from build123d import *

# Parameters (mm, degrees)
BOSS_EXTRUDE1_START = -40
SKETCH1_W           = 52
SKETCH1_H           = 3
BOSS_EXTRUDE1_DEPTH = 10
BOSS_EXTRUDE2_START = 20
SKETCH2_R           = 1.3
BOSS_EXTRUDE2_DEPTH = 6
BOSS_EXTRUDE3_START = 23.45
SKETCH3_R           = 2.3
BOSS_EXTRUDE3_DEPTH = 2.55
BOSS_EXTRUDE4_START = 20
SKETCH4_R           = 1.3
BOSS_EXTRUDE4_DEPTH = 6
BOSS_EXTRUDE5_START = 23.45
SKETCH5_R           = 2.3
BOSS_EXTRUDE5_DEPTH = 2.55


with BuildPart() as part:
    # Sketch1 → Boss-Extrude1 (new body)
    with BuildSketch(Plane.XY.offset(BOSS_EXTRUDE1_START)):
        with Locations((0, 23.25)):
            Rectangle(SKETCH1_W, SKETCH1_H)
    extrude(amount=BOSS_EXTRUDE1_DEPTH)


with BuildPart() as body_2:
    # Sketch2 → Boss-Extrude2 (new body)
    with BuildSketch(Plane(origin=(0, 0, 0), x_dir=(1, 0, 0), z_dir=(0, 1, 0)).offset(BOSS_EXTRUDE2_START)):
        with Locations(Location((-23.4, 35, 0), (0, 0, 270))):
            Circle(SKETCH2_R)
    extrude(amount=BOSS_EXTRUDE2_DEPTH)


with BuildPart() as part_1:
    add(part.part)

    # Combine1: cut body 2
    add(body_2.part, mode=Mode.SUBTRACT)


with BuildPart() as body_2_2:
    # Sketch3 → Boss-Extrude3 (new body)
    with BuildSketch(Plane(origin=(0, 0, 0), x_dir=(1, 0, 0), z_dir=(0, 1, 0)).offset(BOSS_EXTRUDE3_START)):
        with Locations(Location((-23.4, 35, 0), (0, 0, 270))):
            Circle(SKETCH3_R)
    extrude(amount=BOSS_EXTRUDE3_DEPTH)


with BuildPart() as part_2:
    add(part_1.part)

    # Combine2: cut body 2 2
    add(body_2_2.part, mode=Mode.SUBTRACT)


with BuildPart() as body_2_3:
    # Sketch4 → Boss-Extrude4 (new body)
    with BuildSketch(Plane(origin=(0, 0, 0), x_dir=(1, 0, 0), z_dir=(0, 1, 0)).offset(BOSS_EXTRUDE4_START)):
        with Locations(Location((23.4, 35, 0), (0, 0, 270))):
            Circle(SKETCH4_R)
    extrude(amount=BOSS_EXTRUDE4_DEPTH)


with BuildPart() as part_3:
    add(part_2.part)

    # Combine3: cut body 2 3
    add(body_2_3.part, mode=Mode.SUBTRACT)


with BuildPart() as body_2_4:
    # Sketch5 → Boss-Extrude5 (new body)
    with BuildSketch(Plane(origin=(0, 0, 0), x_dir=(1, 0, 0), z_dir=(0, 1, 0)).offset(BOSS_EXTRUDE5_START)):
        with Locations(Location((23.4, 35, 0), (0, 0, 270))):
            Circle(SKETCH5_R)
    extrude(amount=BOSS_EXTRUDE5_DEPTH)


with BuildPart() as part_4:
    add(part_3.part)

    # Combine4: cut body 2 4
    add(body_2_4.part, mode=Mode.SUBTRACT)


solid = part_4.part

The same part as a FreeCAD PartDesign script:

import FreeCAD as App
import Part
import Sketcher
from FreeCAD import Vector
Q = App.Units.Quantity


def add_polygon(sketch, points):
    """Adds a closed chain of lines whose ends are joined by coincident constraints."""
    first, n = sketch.GeometryCount, len(points)
    for a, b in zip(points, points[1:] + points[:1]):
        sketch.addGeometry(Part.LineSegment(App.Vector(*a, 0), App.Vector(*b, 0)), False)
    for i in range(n):
        sketch.addConstraint(Sketcher.Constraint("Coincident", first + i, 2, first + (i + 1) % n, 1))

doc = App.newDocument("Part")
body = doc.addObject("PartDesign::Body", "Body")

sketch1 = body.newObject("Sketcher::SketchObject", "Sketch")
sketch1.AttachmentSupport = (doc.getObject("XY_Plane"), [""])
sketch1.MapMode = "FlatFace"
sketch1.AttachmentOffset = App.Placement(Vector(0, 0, -40), App.Rotation())
add_polygon(sketch1, [(-26, 24.8), (-26, 21.8), (26, 21.8), (26, 24.8)])
sketch1.addConstraint([
    Sketcher.Constraint("Vertical", 0),
    Sketcher.Constraint("Horizontal", 1),
    Sketcher.Constraint("Vertical", 2),
    Sketcher.Constraint("Horizontal", 3),
    Sketcher.Constraint("DistanceX", 1, 1, 1, 2, Q("52 mm")),
    Sketcher.Constraint("DistanceY", 0, 2, 0, 1, Q("3 mm")),
    Sketcher.Constraint("DistanceX", 0, 2, -1, 1, Q("26 mm")),
    Sketcher.Constraint("DistanceY", -1, 1, 0, 2, Q("21.75 mm")),
])
pad1 = body.newObject("PartDesign::Pad", "Pad")
pad1.Profile = sketch1
pad1.Length = 10
body2 = doc.addObject("PartDesign::Body", "Body001")

sketch2 = body2.newObject("Sketcher::SketchObject", "Sketch001")
sketch2.AttachmentSupport = (doc.getObject("XZ_Plane001"), [""])
sketch2.MapMode = "FlatFace"
sketch2.AttachmentOffset = App.Placement(Vector(0, 0, -20), App.Rotation())
sketch2.addGeometry(Part.Circle(Vector(-23.4, -35, 0), Vector(0, 0, 1), 1.3), False)
sketch2.addConstraint([
    Sketcher.Constraint("Diameter", 0, Q("2.6 mm")),
    Sketcher.Constraint("DistanceY", 0, 3, -1, 1, Q("35 mm")),
    Sketcher.Constraint("DistanceX", 0, 3, -1, 1, Q("23.4 mm")),
])
pad2 = body2.newObject("PartDesign::Pad", "Pad001")
pad2.Profile = sketch2
pad2.Length = 6
pad2.Reversed = True
doc.recompute()

boolean = body.newObject("PartDesign::Boolean", "Boolean")
boolean.Type = "Cut"
boolean.addObjects([body2])
body3 = doc.addObject("PartDesign::Body", "Body002")

sketch3 = body3.newObject("Sketcher::SketchObject", "Sketch002")
sketch3.AttachmentSupport = (doc.getObject("XZ_Plane002"), [""])
sketch3.MapMode = "FlatFace"
sketch3.AttachmentOffset = App.Placement(Vector(0, 0, -23.45), App.Rotation())
sketch3.addGeometry(Part.Circle(Vector(-23.4, -35, 0), Vector(0, 0, 1), 2.3), False)
sketch3.addConstraint([
    Sketcher.Constraint("Diameter", 0, Q("4.6 mm")),
    Sketcher.Constraint("DistanceY", 0, 3, -1, 1, Q("35 mm")),
    Sketcher.Constraint("DistanceX", 0, 3, -1, 1, Q("23.4 mm")),
])
pad3 = body3.newObject("PartDesign::Pad", "Pad002")
pad3.Profile = sketch3
pad3.Length = 2.55
pad3.Reversed = True
doc.recompute()

boolean2 = body.newObject("PartDesign::Boolean", "Boolean001")
boolean2.Type = "Cut"
boolean2.addObjects([body3])
body4 = doc.addObject("PartDesign::Body", "Body003")

sketch4 = body4.newObject("Sketcher::SketchObject", "Sketch003")
sketch4.AttachmentSupport = (doc.getObject("XZ_Plane003"), [""])
sketch4.MapMode = "FlatFace"
sketch4.AttachmentOffset = App.Placement(Vector(0, 0, -20), App.Rotation())
sketch4.addGeometry(Part.Circle(Vector(23.4, -35, 0), Vector(0, 0, 1), 1.3), False)
sketch4.addConstraint([
    Sketcher.Constraint("Diameter", 0, Q("2.6 mm")),
    Sketcher.Constraint("DistanceY", 0, 3, -1, 1, Q("35 mm")),
    Sketcher.Constraint("DistanceX", -1, 1, 0, 3, Q("23.4 mm")),
])
pad4 = body4.newObject("PartDesign::Pad", "Pad003")
pad4.Profile = sketch4
pad4.Length = 6
pad4.Reversed = True
doc.recompute()

boolean3 = body.newObject("PartDesign::Boolean", "Boolean002")
boolean3.Type = "Cut"
boolean3.addObjects([body4])
body5 = doc.addObject("PartDesign::Body", "Body004")

sketch5 = body5.newObject("Sketcher::SketchObject", "Sketch004")
sketch5.AttachmentSupport = (doc.getObject("XZ_Plane004"), [""])
sketch5.MapMode = "FlatFace"
sketch5.AttachmentOffset = App.Placement(Vector(0, 0, -23.45), App.Rotation())
sketch5.addGeometry(Part.Circle(Vector(23.4, -35, 0), Vector(0, 0, 1), 2.3), False)
sketch5.addConstraint([
    Sketcher.Constraint("Diameter", 0, Q("4.6 mm")),
    Sketcher.Constraint("DistanceY", 0, 3, -1, 1, Q("35 mm")),
    Sketcher.Constraint("DistanceX", -1, 1, 0, 3, Q("23.4 mm")),
])
pad5 = body5.newObject("PartDesign::Pad", "Pad004")
pad5.Profile = sketch5
pad5.Length = 2.55
pad5.Reversed = True
doc.recompute()

boolean4 = body.newObject("PartDesign::Boolean", "Boolean003")
boolean4.Type = "Cut"
boolean4.addObjects([body5])

doc.recompute()
